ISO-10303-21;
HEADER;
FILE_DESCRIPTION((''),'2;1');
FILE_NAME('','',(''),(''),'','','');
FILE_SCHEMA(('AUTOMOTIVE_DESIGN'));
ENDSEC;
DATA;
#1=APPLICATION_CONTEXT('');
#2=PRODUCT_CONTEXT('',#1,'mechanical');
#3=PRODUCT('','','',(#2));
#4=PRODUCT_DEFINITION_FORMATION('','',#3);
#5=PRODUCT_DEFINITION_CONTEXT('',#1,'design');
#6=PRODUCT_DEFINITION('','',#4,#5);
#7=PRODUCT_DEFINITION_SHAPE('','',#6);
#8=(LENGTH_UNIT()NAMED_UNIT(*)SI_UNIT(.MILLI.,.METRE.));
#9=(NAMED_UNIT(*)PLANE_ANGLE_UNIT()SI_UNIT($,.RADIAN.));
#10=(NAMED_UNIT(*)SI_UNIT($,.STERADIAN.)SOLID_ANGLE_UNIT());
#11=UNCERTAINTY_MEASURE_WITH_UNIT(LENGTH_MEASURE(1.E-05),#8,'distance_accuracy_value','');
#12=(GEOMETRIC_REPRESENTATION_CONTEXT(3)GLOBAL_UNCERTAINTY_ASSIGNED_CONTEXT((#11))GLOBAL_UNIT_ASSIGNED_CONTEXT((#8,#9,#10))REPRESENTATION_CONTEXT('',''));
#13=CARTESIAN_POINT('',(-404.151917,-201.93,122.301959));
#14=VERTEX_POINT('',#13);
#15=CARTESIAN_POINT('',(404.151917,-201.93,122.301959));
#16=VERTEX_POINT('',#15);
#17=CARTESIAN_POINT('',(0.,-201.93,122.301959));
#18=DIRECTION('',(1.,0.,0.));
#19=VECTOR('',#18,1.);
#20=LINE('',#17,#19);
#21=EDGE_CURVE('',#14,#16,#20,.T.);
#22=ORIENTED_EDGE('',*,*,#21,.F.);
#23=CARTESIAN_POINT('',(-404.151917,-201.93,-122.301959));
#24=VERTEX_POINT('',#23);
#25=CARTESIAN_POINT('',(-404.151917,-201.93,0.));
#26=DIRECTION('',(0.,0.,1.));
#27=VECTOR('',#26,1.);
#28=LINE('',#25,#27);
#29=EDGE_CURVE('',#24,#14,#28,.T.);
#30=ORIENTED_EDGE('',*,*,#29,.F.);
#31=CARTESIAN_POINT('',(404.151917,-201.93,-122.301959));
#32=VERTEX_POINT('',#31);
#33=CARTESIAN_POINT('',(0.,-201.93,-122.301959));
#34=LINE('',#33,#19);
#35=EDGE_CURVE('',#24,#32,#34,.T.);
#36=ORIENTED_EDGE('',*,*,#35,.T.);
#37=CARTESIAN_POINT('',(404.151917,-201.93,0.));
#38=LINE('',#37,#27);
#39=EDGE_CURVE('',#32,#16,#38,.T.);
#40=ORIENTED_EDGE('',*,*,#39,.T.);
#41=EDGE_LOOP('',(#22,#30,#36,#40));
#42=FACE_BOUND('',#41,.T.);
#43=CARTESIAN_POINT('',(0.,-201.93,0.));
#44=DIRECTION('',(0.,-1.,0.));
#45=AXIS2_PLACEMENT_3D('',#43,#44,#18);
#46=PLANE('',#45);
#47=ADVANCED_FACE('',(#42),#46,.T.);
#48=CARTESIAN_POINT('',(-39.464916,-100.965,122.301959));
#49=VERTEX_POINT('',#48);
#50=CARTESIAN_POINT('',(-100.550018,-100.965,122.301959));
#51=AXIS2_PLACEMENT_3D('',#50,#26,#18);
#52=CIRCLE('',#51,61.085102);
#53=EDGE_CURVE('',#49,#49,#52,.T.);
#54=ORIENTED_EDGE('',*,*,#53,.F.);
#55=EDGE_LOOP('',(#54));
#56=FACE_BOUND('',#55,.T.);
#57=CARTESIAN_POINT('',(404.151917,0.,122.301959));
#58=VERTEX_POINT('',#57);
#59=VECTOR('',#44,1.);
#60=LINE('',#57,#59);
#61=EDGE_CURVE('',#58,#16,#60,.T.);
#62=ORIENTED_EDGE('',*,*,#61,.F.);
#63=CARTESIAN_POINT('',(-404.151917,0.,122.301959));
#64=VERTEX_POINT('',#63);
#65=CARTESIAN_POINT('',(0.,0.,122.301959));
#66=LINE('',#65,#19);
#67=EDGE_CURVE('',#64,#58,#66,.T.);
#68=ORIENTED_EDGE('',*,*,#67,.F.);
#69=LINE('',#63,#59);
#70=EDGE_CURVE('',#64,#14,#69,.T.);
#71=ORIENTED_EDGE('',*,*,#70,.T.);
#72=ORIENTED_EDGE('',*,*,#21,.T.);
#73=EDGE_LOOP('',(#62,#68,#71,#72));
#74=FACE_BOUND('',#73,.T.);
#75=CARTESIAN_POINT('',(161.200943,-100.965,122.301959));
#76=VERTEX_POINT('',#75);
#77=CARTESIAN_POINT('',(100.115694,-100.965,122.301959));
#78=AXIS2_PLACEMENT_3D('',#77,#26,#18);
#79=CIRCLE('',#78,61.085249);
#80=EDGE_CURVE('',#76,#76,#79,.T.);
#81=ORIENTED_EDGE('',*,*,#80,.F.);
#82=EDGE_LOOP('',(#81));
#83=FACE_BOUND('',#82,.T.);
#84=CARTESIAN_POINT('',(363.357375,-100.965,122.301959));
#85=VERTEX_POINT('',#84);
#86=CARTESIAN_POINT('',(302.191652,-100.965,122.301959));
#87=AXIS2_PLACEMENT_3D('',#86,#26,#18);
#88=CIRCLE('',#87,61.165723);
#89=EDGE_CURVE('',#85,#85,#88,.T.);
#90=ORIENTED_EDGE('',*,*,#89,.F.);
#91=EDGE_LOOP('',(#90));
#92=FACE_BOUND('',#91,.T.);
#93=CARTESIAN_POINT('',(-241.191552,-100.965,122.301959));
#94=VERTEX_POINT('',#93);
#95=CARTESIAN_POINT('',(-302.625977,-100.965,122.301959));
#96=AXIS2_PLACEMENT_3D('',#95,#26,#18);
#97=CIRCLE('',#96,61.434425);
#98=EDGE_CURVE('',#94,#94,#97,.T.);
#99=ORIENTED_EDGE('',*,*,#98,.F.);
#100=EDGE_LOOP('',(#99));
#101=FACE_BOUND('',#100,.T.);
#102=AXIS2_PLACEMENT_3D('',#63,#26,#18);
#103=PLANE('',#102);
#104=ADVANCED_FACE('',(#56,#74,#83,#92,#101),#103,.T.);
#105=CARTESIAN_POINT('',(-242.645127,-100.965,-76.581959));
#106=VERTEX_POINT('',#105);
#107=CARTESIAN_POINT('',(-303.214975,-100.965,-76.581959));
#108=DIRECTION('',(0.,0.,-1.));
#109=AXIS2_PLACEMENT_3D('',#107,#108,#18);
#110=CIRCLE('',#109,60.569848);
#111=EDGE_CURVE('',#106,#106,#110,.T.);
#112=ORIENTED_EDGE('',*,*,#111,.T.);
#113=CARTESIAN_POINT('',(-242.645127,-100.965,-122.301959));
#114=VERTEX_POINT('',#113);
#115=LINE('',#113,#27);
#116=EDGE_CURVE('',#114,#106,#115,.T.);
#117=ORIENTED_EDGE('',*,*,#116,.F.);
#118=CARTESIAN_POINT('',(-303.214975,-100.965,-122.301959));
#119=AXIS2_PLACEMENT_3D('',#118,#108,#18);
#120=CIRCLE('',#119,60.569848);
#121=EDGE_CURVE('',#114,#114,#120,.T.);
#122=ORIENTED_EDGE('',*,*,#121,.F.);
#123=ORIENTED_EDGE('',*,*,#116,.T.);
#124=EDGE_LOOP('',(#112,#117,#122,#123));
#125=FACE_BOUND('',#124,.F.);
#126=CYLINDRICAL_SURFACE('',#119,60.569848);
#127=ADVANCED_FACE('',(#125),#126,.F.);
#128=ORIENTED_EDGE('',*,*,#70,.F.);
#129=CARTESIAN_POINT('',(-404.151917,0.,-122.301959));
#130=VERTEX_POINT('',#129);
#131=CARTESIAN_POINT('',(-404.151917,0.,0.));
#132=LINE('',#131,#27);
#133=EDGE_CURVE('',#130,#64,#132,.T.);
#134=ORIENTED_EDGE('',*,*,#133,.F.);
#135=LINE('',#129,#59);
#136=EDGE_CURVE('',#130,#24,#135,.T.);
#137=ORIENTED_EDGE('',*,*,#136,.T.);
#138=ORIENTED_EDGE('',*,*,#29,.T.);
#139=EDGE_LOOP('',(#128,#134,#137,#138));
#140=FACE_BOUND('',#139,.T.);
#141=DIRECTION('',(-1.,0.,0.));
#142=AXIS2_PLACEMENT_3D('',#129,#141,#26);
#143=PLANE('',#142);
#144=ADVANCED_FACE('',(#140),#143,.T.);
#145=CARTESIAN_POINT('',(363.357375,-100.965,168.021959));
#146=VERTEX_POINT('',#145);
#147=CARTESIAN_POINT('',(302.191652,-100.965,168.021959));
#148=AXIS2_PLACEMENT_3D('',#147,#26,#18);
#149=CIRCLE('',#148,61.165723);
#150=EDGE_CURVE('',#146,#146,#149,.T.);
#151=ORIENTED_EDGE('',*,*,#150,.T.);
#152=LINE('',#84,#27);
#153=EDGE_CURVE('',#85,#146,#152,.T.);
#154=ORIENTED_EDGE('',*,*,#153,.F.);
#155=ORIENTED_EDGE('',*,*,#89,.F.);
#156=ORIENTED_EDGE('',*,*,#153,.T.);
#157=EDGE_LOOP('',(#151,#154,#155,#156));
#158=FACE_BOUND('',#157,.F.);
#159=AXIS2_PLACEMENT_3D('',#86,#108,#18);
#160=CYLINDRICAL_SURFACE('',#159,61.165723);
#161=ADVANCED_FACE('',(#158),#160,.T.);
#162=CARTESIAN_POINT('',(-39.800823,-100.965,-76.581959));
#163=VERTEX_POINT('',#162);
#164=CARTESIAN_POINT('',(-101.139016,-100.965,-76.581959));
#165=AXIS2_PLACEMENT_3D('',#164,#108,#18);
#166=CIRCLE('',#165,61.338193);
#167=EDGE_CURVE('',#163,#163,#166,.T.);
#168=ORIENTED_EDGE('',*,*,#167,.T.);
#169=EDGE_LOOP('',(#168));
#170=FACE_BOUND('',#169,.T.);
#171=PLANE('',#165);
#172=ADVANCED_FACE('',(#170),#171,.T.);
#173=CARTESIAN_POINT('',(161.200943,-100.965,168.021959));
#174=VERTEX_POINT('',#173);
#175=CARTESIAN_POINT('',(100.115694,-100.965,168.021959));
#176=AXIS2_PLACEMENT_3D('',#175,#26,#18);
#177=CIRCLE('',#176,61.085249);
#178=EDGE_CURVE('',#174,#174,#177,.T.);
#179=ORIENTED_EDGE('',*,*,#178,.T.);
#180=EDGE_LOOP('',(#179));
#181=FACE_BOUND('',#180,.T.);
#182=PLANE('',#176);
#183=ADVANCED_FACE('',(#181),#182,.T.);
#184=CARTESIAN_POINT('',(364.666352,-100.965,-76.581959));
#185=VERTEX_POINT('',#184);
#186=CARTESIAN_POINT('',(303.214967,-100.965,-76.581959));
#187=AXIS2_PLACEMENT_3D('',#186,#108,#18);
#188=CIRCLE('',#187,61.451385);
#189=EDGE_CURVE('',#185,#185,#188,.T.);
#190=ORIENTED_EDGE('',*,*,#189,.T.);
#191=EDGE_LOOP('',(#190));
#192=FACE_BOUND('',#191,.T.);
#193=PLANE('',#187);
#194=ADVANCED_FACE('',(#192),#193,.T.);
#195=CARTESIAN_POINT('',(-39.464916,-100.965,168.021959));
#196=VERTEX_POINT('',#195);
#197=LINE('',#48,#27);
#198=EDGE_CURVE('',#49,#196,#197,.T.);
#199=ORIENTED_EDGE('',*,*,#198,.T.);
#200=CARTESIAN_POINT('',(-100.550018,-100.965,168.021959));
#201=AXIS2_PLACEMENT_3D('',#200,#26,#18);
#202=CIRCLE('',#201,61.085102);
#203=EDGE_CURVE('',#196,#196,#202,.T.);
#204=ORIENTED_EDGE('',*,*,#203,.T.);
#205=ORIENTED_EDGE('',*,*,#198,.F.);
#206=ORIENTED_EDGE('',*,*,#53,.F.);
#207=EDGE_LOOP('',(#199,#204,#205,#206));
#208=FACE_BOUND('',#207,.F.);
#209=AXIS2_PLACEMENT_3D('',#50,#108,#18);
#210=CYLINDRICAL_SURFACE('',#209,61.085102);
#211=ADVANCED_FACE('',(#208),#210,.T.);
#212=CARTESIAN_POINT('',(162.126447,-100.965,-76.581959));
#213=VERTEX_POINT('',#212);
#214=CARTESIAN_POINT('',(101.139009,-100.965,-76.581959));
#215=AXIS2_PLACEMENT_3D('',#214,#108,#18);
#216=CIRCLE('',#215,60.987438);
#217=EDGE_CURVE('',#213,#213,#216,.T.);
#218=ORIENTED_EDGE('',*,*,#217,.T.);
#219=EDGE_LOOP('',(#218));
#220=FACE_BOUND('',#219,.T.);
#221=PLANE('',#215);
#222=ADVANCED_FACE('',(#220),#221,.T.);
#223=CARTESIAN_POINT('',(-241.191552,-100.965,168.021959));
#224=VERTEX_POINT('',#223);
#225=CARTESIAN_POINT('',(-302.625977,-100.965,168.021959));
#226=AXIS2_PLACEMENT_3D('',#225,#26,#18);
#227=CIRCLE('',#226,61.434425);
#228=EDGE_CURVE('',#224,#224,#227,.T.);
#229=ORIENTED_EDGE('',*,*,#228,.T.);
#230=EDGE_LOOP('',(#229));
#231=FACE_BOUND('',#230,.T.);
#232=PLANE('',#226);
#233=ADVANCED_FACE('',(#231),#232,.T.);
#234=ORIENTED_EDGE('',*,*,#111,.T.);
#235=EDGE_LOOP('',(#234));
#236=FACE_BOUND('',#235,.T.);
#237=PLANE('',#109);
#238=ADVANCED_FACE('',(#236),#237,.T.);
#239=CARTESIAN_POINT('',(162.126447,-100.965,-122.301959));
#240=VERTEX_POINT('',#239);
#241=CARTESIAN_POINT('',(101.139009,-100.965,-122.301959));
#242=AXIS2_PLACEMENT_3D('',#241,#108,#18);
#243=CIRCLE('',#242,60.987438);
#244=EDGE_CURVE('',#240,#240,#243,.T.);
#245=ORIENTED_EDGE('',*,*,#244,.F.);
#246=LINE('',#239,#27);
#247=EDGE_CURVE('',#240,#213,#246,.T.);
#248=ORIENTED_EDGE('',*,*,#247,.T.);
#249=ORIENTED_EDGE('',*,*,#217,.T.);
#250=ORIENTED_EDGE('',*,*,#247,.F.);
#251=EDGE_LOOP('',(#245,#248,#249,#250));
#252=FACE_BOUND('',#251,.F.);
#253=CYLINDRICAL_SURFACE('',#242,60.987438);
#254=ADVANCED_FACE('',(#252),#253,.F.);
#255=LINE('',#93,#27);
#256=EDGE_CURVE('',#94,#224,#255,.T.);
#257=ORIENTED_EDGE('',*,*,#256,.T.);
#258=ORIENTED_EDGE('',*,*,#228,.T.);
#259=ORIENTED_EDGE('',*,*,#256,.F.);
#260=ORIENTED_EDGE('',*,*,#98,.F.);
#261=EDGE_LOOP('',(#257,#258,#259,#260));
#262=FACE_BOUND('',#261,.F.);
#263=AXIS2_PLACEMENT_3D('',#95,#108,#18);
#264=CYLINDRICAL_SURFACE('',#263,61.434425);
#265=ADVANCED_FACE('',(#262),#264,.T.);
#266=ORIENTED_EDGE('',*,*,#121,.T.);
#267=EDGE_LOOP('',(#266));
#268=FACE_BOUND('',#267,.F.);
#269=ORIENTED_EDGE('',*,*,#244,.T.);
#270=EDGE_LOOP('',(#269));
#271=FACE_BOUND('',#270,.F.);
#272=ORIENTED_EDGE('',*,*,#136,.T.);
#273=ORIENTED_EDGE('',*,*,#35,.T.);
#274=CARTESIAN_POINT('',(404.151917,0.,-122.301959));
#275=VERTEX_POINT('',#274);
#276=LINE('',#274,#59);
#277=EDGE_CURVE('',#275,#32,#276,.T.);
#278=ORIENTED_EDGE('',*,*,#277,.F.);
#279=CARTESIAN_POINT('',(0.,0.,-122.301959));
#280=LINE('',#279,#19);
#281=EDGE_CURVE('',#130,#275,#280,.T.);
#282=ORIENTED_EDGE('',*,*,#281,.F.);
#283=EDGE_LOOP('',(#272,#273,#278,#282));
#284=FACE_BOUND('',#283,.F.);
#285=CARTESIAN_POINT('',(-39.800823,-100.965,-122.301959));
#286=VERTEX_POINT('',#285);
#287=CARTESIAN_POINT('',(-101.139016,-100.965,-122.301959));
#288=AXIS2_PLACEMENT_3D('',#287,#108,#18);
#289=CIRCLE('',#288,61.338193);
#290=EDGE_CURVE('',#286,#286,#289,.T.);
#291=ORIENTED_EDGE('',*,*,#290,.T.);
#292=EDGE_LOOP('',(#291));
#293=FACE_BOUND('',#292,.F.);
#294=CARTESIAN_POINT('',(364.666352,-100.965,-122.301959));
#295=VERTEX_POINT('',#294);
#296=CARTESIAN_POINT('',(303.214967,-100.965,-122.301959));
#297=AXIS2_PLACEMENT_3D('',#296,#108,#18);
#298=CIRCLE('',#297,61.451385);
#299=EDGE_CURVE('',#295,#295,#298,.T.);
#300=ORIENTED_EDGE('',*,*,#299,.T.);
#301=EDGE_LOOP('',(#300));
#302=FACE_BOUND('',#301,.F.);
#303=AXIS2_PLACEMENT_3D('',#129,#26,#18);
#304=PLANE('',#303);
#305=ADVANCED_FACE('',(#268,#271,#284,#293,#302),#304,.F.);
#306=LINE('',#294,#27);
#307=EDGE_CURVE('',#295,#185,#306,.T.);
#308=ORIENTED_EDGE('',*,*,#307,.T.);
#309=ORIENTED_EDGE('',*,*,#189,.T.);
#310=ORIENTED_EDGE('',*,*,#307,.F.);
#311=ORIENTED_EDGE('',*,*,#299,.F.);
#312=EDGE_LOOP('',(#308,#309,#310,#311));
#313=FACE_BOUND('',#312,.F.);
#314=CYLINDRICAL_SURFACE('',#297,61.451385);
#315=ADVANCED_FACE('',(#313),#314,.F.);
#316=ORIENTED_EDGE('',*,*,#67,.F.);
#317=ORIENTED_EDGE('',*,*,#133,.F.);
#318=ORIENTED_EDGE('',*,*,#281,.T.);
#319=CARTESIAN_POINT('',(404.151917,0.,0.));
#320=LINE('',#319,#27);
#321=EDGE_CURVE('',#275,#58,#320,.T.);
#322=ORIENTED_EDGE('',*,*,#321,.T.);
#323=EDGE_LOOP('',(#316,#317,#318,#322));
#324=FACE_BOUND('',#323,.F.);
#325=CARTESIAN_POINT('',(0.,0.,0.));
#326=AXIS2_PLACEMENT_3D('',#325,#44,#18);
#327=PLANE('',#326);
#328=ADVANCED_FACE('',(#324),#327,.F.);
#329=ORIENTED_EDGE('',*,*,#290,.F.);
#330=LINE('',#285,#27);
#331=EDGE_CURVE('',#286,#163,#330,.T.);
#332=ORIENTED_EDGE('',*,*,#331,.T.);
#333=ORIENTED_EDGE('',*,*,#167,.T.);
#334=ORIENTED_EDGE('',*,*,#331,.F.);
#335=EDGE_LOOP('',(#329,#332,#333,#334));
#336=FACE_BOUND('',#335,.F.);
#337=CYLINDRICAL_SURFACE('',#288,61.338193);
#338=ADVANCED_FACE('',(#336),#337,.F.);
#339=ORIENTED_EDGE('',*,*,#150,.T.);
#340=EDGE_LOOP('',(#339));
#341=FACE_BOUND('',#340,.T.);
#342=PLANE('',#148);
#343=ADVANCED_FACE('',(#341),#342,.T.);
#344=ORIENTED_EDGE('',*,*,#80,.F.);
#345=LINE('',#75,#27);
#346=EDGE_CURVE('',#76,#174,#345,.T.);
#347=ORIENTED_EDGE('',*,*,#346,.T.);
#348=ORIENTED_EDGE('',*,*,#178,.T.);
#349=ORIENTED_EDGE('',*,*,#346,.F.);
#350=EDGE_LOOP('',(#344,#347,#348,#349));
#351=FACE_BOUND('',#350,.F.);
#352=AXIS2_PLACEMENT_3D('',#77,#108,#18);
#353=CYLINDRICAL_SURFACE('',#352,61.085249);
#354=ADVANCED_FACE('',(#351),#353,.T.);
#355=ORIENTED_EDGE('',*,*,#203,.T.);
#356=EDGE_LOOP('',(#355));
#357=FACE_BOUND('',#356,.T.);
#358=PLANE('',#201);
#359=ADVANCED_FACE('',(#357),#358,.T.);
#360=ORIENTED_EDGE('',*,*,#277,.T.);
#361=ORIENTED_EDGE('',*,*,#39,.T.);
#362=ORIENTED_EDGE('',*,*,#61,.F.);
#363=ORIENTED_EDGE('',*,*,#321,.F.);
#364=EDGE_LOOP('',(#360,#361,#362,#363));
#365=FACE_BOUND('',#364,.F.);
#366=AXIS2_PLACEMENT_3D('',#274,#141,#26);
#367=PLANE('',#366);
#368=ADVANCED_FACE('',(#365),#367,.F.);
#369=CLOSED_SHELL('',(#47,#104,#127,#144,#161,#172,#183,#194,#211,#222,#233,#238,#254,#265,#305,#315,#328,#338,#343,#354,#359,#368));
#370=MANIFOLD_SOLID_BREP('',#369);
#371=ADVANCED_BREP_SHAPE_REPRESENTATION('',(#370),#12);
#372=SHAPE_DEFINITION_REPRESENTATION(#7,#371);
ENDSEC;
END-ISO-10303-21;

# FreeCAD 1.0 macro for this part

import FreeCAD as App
import Part
import Sketcher
Q = App.Units.Quantity

doc = App.newDocument("Part")
body = doc.addObject("PartDesign::Body", "Body")

# Sketch on XZ plane
sketch1 = body.newObject("Sketcher::SketchObject", "Sketch")
sketch1.AttachmentSupport = (doc.getObject("XZ_Plane"), [""])
sketch1.MapMode = "FlatFace"
sketch1.addGeometry(Part.LineSegment(App.Vector(-404.151917, 122.301959, 0), App.Vector(-404.151917, -122.301959, 0)), False)
sketch1.addGeometry(Part.LineSegment(App.Vector(-404.151917, -122.301959, 0), App.Vector(404.151917, -122.301959, 0)), False)
sketch1.addGeometry(Part.LineSegment(App.Vector(404.151917, -122.301959, 0), App.Vector(404.151917, 122.301959, 0)), False)
sketch1.addGeometry(Part.LineSegment(App.Vector(404.151917, 122.301959, 0), App.Vector(-404.151917, 122.301959, 0)), False)
sketch1.addConstraint(Sketcher.Constraint("Coincident", 0, 2, 1, 1))
sketch1.addConstraint(Sketcher.Constraint("Coincident", 1, 2, 2, 1))
sketch1.addConstraint(Sketcher.Constraint("Coincident", 2, 2, 3, 1))
sketch1.addConstraint(Sketcher.Constraint("Coincident", 3, 2, 0, 1))
sketch1.addConstraint(Sketcher.Constraint("Vertical", 0))
sketch1.addConstraint(Sketcher.Constraint("Horizontal", 1))
sketch1.addConstraint(Sketcher.Constraint("Vertical", 2))
sketch1.addConstraint(Sketcher.Constraint("Horizontal", 3))
sketch1.addConstraint(Sketcher.Constraint("Symmetric", 0, 2, 2, 2, -1, 1))
sketch1.addConstraint(Sketcher.Constraint("DistanceY", 0, 2, 0, 1, 244.603918))
sketch1.addConstraint(Sketcher.Constraint("DistanceX", 1, 1, 1, 2, 808.303834))
pad1 = body.newObject("PartDesign::Pad", "Pad")
pad1.Profile = sketch1
pad1.Length = Q("7.95 in")

# Sketch on XY plane
sketch2 = body.newObject("Sketcher::SketchObject", "Sketch001")
sketch2.AttachmentSupport = (doc.getObject("XY_Plane"), [""])
sketch2.MapMode = "FlatFace"
sketch2.AttachmentOffset = App.Placement(App.Vector(0, 0, 122.301959), App.Rotation())
sketch2.addGeometry(Part.Circle(App.Vector(-100.550018, -100.965, 0), App.Vector(0, 0, 1), 61.085102), False)
sketch2.addGeometry(Part.Circle(App.Vector(100.115694, -100.965, 0), App.Vector(0, 0, 1), 61.085249), False)
sketch2.addGeometry(Part.Circle(App.Vector(302.191652, -100.965, 0), App.Vector(0, 0, 1), 61.165723), False)
sketch2.addGeometry(Part.Circle(App.Vector(-302.625977, -100.965, 0), App.Vector(0, 0, 1), 61.434425), False)
sketch2.addConstraint(Sketcher.Constraint("Horizontal", 0, 3, 1, 3))
sketch2.addConstraint(Sketcher.Constraint("Horizontal", 1, 3, 2, 3))
sketch2.addConstraint(Sketcher.Constraint("Horizontal", 2, 3, 3, 3))
sketch2.addConstraint(Sketcher.Constraint("Diameter", 3, 122.86885))
sketch2.addConstraint(Sketcher.Constraint("DistanceY", 0, 3, -1, 1, Q("3.975 in")))
sketch2.addConstraint(Sketcher.Constraint("Diameter", 0, 122.170204))
sketch2.addConstraint(Sketcher.Constraint("Diameter", 1, 122.170498))
sketch2.addConstraint(Sketcher.Constraint("Diameter", 2, 122.331446))
sketch2.addConstraint(Sketcher.Constraint("DistanceX", -1, 1, 2, 3, 302.191652))
sketch2.addConstraint(Sketcher.Constraint("DistanceX", 0, 3, 1, 3, 200.665712))
sketch2.addConstraint(Sketcher.Constraint("DistanceX", 0, 3, 2, 3, 402.74167))
sketch2.addConstraint(Sketcher.Constraint("DistanceX", 3, 3, 0, 3, 202.075959))
pad2 = body.newObject("PartDesign::Pad", "Pad001")
pad2.Profile = sketch2
pad2.Length = Q("1.8 in")

# Sketch on XY plane
sketch3 = body.newObject("Sketcher::SketchObject", "Sketch002")
sketch3.AttachmentSupport = (doc.getObject("XY_Plane"), [""])
sketch3.MapMode = "FlatFace"
sketch3.AttachmentOffset = App.Placement(App.Vector(0, 0, -122.301959), App.Rotation())
sketch3.addGeometry(Part.Circle(App.Vector(303.214967, -100.965, 0), App.Vector(0, 0, 1), 61.451385), False)
sketch3.addGeometry(Part.Circle(App.Vector(101.139009, -100.965, 0), App.Vector(0, 0, 1), 60.987438), False)
sketch3.addGeometry(Part.Circle(App.Vector(-101.139016, -100.965, 0), App.Vector(0, 0, 1), 61.338193), False)
sketch3.addGeometry(Part.Circle(App.Vector(-303.214975, -100.965, 0), App.Vector(0, 0, 1), 60.569848), False)
sketch3.addConstraint(Sketcher.Constraint("Symmetric", 1, 3, 2, 3, -2))
sketch3.addConstraint(Sketcher.Constraint("Symmetric", 0, 3, 3, 3, -2))
sketch3.addConstraint(Sketcher.Constraint("Horizontal", 0, 3, 1, 3))
sketch3.addConstraint(Sketcher.Constraint("Diameter", 0, 122.90277))
sketch3.addConstraint(Sketcher.Constraint("DistanceY", 0, 3, -1, 1, Q("3.975 in")))
sketch3.addConstraint(Sketcher.Constraint("Diameter", 1, 121.974876))
sketch3.addConstraint(Sketcher.Constraint("Diameter", 2, 122.676386))
sketch3.addConstraint(Sketcher.Constraint("Diameter", 3, 121.139696))
sketch3.addConstraint(Sketcher.Constraint("DistanceX", -1, 1, 1, 3, 101.139009))
sketch3.addConstraint(Sketcher.Constraint("DistanceX", 1, 3, 0, 3, 202.075958))
pocket1 = body.newObject("PartDesign::Pocket", "Pocket")
pocket1.Profile = sketch3
pocket1.Length = Q("1.8 in")
pocket1.Reversed = True

doc.recompute()
